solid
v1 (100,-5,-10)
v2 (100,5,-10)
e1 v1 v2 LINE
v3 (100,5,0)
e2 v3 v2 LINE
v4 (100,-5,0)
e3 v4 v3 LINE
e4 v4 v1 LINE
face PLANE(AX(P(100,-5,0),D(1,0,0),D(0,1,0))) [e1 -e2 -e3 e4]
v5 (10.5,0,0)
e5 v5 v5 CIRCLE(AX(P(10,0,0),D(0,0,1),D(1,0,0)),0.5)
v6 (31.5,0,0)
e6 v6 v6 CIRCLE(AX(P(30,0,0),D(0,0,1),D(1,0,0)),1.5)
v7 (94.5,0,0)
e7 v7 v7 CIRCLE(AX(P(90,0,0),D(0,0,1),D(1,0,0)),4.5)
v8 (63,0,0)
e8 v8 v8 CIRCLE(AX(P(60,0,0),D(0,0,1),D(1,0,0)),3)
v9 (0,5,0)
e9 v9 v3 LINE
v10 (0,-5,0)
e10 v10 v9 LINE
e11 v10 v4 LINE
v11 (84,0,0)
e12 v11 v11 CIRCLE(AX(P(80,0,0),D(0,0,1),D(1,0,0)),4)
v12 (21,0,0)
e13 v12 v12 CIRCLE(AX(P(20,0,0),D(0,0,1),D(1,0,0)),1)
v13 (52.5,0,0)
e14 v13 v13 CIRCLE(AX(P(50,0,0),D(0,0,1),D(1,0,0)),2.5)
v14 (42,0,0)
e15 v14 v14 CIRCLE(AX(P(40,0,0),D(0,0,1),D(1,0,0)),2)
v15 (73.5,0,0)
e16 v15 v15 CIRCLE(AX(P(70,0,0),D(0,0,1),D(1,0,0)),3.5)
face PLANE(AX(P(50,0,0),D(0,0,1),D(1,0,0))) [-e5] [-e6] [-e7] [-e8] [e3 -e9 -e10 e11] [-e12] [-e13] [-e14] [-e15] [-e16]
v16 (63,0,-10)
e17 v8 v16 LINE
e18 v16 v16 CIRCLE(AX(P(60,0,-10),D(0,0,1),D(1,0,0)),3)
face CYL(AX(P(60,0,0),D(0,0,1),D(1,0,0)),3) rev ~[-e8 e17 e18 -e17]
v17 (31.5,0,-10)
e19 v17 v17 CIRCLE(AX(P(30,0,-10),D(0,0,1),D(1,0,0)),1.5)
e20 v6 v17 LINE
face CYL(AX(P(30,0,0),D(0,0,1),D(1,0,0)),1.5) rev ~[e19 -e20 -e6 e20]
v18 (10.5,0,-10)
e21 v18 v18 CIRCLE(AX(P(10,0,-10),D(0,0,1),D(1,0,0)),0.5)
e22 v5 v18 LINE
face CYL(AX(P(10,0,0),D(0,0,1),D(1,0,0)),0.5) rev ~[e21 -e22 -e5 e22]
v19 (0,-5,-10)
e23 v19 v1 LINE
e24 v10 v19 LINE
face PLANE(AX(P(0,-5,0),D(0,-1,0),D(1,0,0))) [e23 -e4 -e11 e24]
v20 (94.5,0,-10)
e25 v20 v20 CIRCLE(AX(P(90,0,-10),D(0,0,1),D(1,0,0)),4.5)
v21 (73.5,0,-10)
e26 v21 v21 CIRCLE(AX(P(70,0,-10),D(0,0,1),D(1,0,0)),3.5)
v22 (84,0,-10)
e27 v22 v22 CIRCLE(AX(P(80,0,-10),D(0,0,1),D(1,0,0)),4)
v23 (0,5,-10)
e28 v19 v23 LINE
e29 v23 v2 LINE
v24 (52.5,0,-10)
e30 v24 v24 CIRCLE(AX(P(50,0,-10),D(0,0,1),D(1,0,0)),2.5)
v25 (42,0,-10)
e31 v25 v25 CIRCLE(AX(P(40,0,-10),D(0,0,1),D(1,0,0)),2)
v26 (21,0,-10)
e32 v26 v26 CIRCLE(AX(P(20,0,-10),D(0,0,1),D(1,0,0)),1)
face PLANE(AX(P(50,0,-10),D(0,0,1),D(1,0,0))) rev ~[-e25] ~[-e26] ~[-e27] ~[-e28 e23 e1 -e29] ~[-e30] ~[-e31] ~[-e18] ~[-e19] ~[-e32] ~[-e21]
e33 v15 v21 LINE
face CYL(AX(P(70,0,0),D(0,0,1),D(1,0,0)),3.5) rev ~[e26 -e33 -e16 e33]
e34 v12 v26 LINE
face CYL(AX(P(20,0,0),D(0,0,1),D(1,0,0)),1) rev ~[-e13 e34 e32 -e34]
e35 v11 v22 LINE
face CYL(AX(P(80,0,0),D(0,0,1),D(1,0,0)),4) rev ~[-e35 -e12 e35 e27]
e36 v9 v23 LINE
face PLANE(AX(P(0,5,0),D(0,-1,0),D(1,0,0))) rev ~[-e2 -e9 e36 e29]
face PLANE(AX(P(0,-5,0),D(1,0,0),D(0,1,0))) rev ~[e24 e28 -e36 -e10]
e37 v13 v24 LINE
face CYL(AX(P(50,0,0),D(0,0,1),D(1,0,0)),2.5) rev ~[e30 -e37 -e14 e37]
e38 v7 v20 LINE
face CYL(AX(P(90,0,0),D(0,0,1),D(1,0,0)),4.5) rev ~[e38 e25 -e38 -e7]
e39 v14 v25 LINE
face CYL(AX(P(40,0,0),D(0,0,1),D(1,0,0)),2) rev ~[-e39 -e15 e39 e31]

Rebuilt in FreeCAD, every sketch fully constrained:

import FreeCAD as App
import Part
import Sketcher

doc = App.newDocument("Part")
params = doc.addObject("Spreadsheet::Sheet", "Params")
for row, (alias, value) in enumerate([
    ("sketch1_diameter", "1 mm"),
    ("sketch1_diameter2", "2 mm"),
    ("sketch1_diameter3", "3 mm"),
    ("sketch1_diameter4", "4 mm"),
    ("sketch1_diameter5", "5 mm"),
    ("pad1_length", "10 mm"),
], start=1):
    params.set(f"A{row}", alias)
    params.set(f"B{row}", "=" + value)
    params.setAlias(f"B{row}", alias)

body = doc.addObject("PartDesign::Body", "Body")

# Sketch on XY plane
sketch1 = body.newObject("Sketcher::SketchObject", "Sketch")
sketch1.AttachmentSupport = (doc.getObject("XY_Plane"), [""])
sketch1.MapMode = "FlatFace"
sketch1.addGeometry([
    Part.LineSegment(App.Vector(0, 5, 0), App.Vector(0, -5, 0)),  # 0
    Part.LineSegment(App.Vector(0, -5, 0), App.Vector(100, -5, 0)),  # 1
    Part.LineSegment(App.Vector(100, -5, 0), App.Vector(100, 5, 0)),  # 2
    Part.LineSegment(App.Vector(100, 5, 0), App.Vector(0, 5, 0)),  # 3
    Part.Circle(App.Vector(10, 0, 0), App.Vector(0, 0, 1), 0.5),  # 4
    Part.Circle(App.Vector(20, 0, 0), App.Vector(0, 0, 1), 1),  # 5
    Part.Circle(App.Vector(30, 0, 0), App.Vector(0, 0, 1), 1.5),  # 6
    Part.Circle(App.Vector(40, 0, 0), App.Vector(0, 0, 1), 2),  # 7
    Part.Circle(App.Vector(50, 0, 0), App.Vector(0, 0, 1), 2.5),  # 8
    Part.Circle(App.Vector(60, 0, 0), App.Vector(0, 0, 1), 3),  # 9
    Part.Circle(App.Vector(70, 0, 0), App.Vector(0, 0, 1), 3.5),  # 10
    Part.Circle(App.Vector(80, 0, 0), App.Vector(0, 0, 1), 4),  # 11
    Part.Circle(App.Vector(90, 0, 0), App.Vector(0, 0, 1), 4.5),  # 12
], False)
sketch1.addConstraint([
    Sketcher.Constraint("Coincident", 0, 2, 1, 1),
    Sketcher.Constraint("Coincident", 1, 2, 2, 1),
    Sketcher.Constraint("Coincident", 2, 2, 3, 1),
    Sketcher.Constraint("Coincident", 3, 2, 0, 1),
    Sketcher.Constraint("Vertical", 0),
    Sketcher.Constraint("Horizontal", 1),
    Sketcher.Constraint("Vertical", 2),
    Sketcher.Constraint("Horizontal", 3),
    Sketcher.Constraint("Symmetric", 0, 2, 3, 2, -1, 1),
    Sketcher.Constraint("PointOnObject", 4, 3, -1),
    Sketcher.Constraint("PointOnObject", 5, 3, -1),
    Sketcher.Constraint("PointOnObject", 6, 3, -1),
    Sketcher.Constraint("PointOnObject", 7, 3, -1),
    Sketcher.Constraint("PointOnObject", 8, 3, -1),
    Sketcher.Constraint("PointOnObject", 9, 3, -1),
    Sketcher.Constraint("PointOnObject", 10, 3, -1),
    Sketcher.Constraint("PointOnObject", 11, 3, -1),
    Sketcher.Constraint("PointOnObject", 12, 3, -1),
    Sketcher.Constraint("Diameter", 4, 1.0),
    Sketcher.Constraint("Diameter", 5, 2.0),
    Sketcher.Constraint("Diameter", 6, 3.0),
    Sketcher.Constraint("Diameter", 7, 4.0),
    Sketcher.Constraint("Diameter", 8, 5.0),
    Sketcher.Constraint("Diameter", 9, 6.0),
    Sketcher.Constraint("Diameter", 10, 7.0),
    Sketcher.Constraint("Diameter", 11, 8.0),
    Sketcher.Constraint("Diameter", 12, 9.0),
    Sketcher.Constraint("DistanceX", 1, 1, 1, 2, 100.0),
    Sketcher.Constraint("DistanceY", 0, 2, 0, 1, 10.0),
    Sketcher.Constraint("DistanceX", -1, 1, 4, 3, 10.0),
    Sketcher.Constraint("DistanceX", -1, 1, 5, 3, 20.0),
    Sketcher.Constraint("DistanceX", -1, 1, 6, 3, 30.0),
    Sketcher.Constraint("DistanceX", -1, 1, 7, 3, 40.0),
    Sketcher.Constraint("DistanceX", -1, 1, 8, 3, 50.0),
    Sketcher.Constraint("DistanceX", -1, 1, 9, 3, 60.0),
    Sketcher.Constraint("DistanceX", -1, 1, 10, 3, 70.0),
    Sketcher.Constraint("DistanceX", -1, 1, 11, 3, 80.0),
    Sketcher.Constraint("DistanceX", -1, 1, 12, 3, 90.0),
])
sketch1.setExpression("Constraints[18]", "Params.sketch1_diameter")
sketch1.setExpression("Constraints[19]", "Params.sketch1_diameter2")
sketch1.setExpression("Constraints[20]", "Params.sketch1_diameter3")
sketch1.setExpression("Constraints[21]", "Params.sketch1_diameter4")
sketch1.setExpression("Constraints[22]", "Params.sketch1_diameter5")
pad1 = body.newObject("PartDesign::Pad", "Pad")
pad1.Profile = sketch1
pad1.setExpression("Length", "Params.pad1_length")
pad1.Reversed = True

doc.recompute()
